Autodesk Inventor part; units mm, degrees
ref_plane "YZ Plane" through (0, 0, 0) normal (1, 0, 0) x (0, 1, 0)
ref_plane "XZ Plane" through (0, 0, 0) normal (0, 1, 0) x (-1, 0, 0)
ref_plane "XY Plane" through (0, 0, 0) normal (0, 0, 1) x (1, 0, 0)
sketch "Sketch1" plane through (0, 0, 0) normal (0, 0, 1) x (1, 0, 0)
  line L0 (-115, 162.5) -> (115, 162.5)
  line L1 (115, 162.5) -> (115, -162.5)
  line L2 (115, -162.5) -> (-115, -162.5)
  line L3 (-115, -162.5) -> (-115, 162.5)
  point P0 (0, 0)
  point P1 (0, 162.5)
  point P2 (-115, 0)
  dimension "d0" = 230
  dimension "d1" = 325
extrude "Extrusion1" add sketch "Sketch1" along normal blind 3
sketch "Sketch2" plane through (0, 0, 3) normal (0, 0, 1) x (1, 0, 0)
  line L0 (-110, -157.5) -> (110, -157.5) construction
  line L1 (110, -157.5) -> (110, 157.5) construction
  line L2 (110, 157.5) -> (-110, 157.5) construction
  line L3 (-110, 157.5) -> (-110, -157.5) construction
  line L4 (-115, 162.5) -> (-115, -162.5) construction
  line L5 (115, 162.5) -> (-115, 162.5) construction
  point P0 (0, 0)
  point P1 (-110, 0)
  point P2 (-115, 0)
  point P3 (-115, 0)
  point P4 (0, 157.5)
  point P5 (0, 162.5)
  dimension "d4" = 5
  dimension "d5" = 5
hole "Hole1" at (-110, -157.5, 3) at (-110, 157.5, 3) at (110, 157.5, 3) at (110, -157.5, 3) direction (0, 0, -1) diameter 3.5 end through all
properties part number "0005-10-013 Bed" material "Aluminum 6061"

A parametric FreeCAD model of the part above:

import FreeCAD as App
import Part
import Sketcher


def add_polygon(sketch, points):
    """Adds a closed chain of lines whose ends are joined by coincident constraints."""
    first, n = sketch.GeometryCount, len(points)
    for a, b in zip(points, points[1:] + points[:1]):
        sketch.addGeometry(Part.LineSegment(App.Vector(*a, 0), App.Vector(*b, 0)), False)
    for i in range(n):
        sketch.addConstraint(Sketcher.Constraint("Coincident", first + i, 2, first + (i + 1) % n, 1))

doc = App.newDocument("Part")
body = doc.addObject("PartDesign::Body", "Body")

sketch1 = body.newObject("Sketcher::SketchObject", "Sketch")
sketch1.AttachmentSupport = (doc.getObject("XY_Plane"), [""])
sketch1.MapMode = "FlatFace"
add_polygon(sketch1, [(115, 162), (-115, 162), (-115, -162), (115, -162)])
sketch1.addConstraint([
    Sketcher.Constraint("Horizontal", 0),
    Sketcher.Constraint("Vertical", 1),
    Sketcher.Constraint("Horizontal", 2),
    Sketcher.Constraint("Vertical", 3),
    Sketcher.Constraint("Symmetric", 0, 2, 2, 2, -1, 1),
    Sketcher.Constraint("DistanceX", 0, 2, 0, 1, 230.0),
    Sketcher.Constraint("DistanceY", 1, 2, 1, 1, 325.0),
])
pad1 = body.newObject("PartDesign::Pad", "Pad")
pad1.Profile = sketch1
pad1.Length = 3

sketch2 = body.newObject("Sketcher::SketchObject", "Sketch001")
sketch2.AttachmentSupport = (doc.getObject("XY_Plane"), [""])
sketch2.MapMode = "FlatFace"
sketch2.AttachmentOffset = App.Placement(App.Vector(0, 0, 3), App.Rotation())
sketch2.addGeometry([
    Part.Circle(App.Vector(-110, -157.5, 0), App.Vector(0, 0, 1), 1.8),
    Part.Circle(App.Vector(-110, 157.5, 0), App.Vector(0, 0, 1), 1.8),
    Part.Circle(App.Vector(110, 157.5, 0), App.Vector(0, 0, 1), 1.8),
    Part.Circle(App.Vector(110, -157.5, 0), App.Vector(0, 0, 1), 1.8),
], False)
sketch2.addConstraint([
    Sketcher.Constraint("Equal", 0, 1),
    Sketcher.Constraint("Equal", 1, 2),
    Sketcher.Constraint("Equal", 2, 3),
    Sketcher.Constraint("Symmetric", 0, 3, 2, 3, -1, 1),
    Sketcher.Constraint("Symmetric", 1, 3, 3, 3, -1, 1),
    Sketcher.Constraint("Symmetric", 1, 3, 2, 3, -2),
    Sketcher.Constraint("Diameter", 0, 3.5),
    Sketcher.Constraint("DistanceX", 0, 3, -1, 1, 110.0),
    Sketcher.Constraint("DistanceY", 0, 3, 1, 3, 315.0),
])
doc.recompute()
hole = body.newObject("PartDesign::Hole", "Hole")
hole.Profile = sketch2
hole.ThreadType = "None"
hole.Diameter = 3.5
hole.DepthType = "ThroughAll"

doc.recompute()
